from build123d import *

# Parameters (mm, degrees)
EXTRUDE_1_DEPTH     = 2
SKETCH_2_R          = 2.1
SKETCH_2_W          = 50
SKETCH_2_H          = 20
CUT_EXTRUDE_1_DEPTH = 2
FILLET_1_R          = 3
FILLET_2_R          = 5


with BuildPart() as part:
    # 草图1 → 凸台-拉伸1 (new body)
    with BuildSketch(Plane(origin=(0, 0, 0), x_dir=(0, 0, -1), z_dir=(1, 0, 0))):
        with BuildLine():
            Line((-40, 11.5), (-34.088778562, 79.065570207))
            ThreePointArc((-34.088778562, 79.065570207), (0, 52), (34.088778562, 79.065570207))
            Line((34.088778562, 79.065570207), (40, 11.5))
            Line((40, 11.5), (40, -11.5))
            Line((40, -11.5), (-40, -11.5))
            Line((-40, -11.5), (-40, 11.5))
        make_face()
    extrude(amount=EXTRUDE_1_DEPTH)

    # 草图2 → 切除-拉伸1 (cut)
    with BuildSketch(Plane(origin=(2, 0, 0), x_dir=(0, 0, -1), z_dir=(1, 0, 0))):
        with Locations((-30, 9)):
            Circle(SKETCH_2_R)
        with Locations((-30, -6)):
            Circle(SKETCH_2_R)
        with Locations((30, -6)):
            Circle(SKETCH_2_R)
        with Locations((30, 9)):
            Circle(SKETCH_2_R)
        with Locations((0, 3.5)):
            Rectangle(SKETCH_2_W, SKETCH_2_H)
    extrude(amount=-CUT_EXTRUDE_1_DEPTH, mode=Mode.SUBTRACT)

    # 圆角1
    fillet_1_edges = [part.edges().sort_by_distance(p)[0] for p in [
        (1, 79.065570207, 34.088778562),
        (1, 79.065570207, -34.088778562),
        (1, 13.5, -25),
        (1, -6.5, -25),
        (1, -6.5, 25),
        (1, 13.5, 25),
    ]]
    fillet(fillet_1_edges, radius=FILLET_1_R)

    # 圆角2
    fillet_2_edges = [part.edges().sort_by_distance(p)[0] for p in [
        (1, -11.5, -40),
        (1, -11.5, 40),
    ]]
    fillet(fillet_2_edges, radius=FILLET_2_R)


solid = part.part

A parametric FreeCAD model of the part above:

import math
import FreeCAD as App
import Part
import Sketcher
from FreeCAD import Vector
Q = App.Units.Quantity


def edges_at(feature, points):
    """Names of the edges that pass closest to the given points."""
    edges = feature.Shape.Edges
    near = lambda p: min(range(len(edges)), key=lambda i: edges[i].distToShape(Part.Vertex(*p))[0])
    return sorted({f"Edge{near(p) + 1}" for p in points})

doc = App.newDocument("Part")
body = doc.addObject("PartDesign::Body", "Body")

# Sketch on YZ plane
sketch1 = doc.addObject("Sketcher::SketchObject", "Sketch")
body.addObject(sketch1)
sketch1.AttachmentSupport = (doc.YZ_Plane, [""])
sketch1.MapMode = "FlatFace"
sketch1.addGeometry(Part.LineSegment(Vector(79, 34, 0), Vector(12, 40, 0)), False)
sketch1.addGeometry(Part.LineSegment(Vector(12, 40, 0), Vector(-12, 40, 0)), False)
sketch1.addGeometry(Part.LineSegment(Vector(-12, 40, 0), Vector(-12, -40, 0)), False)
sketch1.addGeometry(Part.LineSegment(Vector(-12, -40, 0), Vector(12, -40, 0)), False)
sketch1.addGeometry(Part.LineSegment(Vector(12, -40, 0), Vector(79, -34, 0)), False)
sketch1.addGeometry(Part.ArcOfCircle(Part.Circle(Vector(87, 0, 0), Vector(0, 0, 1), 35), math.radians(103), math.radians(257)), False)
sketch1.addConstraint(Sketcher.Constraint("Coincident", 0, 2, 1, 1))
sketch1.addConstraint(Sketcher.Constraint("Coincident", 1, 2, 2, 1))
sketch1.addConstraint(Sketcher.Constraint("Coincident", 2, 2, 3, 1))
sketch1.addConstraint(Sketcher.Constraint("Coincident", 3, 2, 4, 1))
sketch1.addConstraint(Sketcher.Constraint("Coincident", 4, 2, 5, 2))
sketch1.addConstraint(Sketcher.Constraint("Coincident", 5, 1, 0, 1))
sketch1.addConstraint(Sketcher.Constraint("Horizontal", 1))
sketch1.addConstraint(Sketcher.Constraint("Vertical", 2))
sketch1.addConstraint(Sketcher.Constraint("Horizontal", 3))
sketch1.addConstraint(Sketcher.Constraint("Symmetric", 0, 2, 2, 2, -1, 1))
sketch1.addConstraint(Sketcher.Constraint("Symmetric", 4, 2, 5, 1, -1))
sketch1.addConstraint(Sketcher.Constraint("Vertical", 0, 2, 3, 2))
sketch1.addConstraint(Sketcher.Constraint("Radius", 5, Q("35 mm")))
sketch1.addConstraint(Sketcher.Constraint("DistanceX", 1, 2, 1, 1, Q("23 mm")))
sketch1.addConstraint(Sketcher.Constraint("DistanceY", 2, 2, 2, 1, Q("80 mm")))
sketch1.addConstraint(Sketcher.Constraint("Angle", 0, Q("175 deg")))
sketch1.addConstraint(Sketcher.Constraint("DistanceX", -1, 1, 5, 3, Q("87 mm")))
pad1 = doc.addObject("PartDesign::Pad", "Pad")
body.addObject(pad1)
pad1.Profile = sketch1
pad1.Length = 2

# Sketch on YZ plane
sketch2 = doc.addObject("Sketcher::SketchObject", "Sketch001")
body.addObject(sketch2)
sketch2.AttachmentSupport = (doc.YZ_Plane, [""])
sketch2.MapMode = "FlatFace"
sketch2.AttachmentOffset = App.Placement(Vector(0, 0, 2), App.Rotation())
sketch2.addGeometry(Part.Circle(Vector(9, 30, 0), Vector(0, 0, 1), 2.1), False)
sketch2.addGeometry(Part.Circle(Vector(-6, 30, 0), Vector(0, 0, 1), 2.1), False)
sketch2.addGeometry(Part.Circle(Vector(-6, -30, 0), Vector(0, 0, 1), 2.1), False)
sketch2.addGeometry(Part.Circle(Vector(9, -30, 0), Vector(0, 0, 1), 2.1), False)
sketch2.addGeometry(Part.LineSegment(Vector(13.5, 25, 0), Vector(-6.5, 25, 0)), False)
sketch2.addGeometry(Part.LineSegment(Vector(-6.5, 25, 0), Vector(-6.5, -25, 0)), False)
sketch2.addGeometry(Part.LineSegment(Vector(-6.5, -25, 0), Vector(13.5, -25, 0)), False)
sketch2.addGeometry(Part.LineSegment(Vector(13.5, -25, 0), Vector(13.5, 25, 0)), False)
sketch2.addConstraint(Sketcher.Constraint("Coincident", 4, 2, 5, 1))
sketch2.addConstraint(Sketcher.Constraint("Coincident", 5, 2, 6, 1))
sketch2.addConstraint(Sketcher.Constraint("Coincident", 6, 2, 7, 1))
sketch2.addConstraint(Sketcher.Constraint("Coincident", 7, 2, 4, 1))
sketch2.addConstraint(Sketcher.Constraint("Horizontal", 4))
sketch2.addConstraint(Sketcher.Constraint("Vertical", 5))
sketch2.addConstraint(Sketcher.Constraint("Horizontal", 6))
sketch2.addConstraint(Sketcher.Constraint("Vertical", 7))
sketch2.addConstraint(Sketcher.Constraint("Equal", 0, 1))
sketch2.addConstraint(Sketcher.Constraint("Equal", 1, 2))
sketch2.addConstraint(Sketcher.Constraint("Equal", 2, 3))
sketch2.addConstraint(Sketcher.Constraint("Symmetric", 1, 3, 2, 3, -1))
sketch2.addConstraint(Sketcher.Constraint("Symmetric", 0, 3, 3, 3, -1))
sketch2.addConstraint(Sketcher.Constraint("Horizontal", 0, 3, 1, 3))
sketch2.addConstraint(Sketcher.Constraint("Diameter", 0, Q("4.2 mm")))
sketch2.addConstraint(Sketcher.Constraint("DistanceX", 4, 2, 4, 1, Q("20 mm")))
sketch2.addConstraint(Sketcher.Constraint("DistanceY", 5, 2, 5, 1, Q("50 mm")))
sketch2.addConstraint(Sketcher.Constraint("DistanceX", -1, 1, 0, 3, Q("9 mm")))
sketch2.addConstraint(Sketcher.Constraint("DistanceY", -1, 1, 0, 3, Q("30 mm")))
sketch2.addConstraint(Sketcher.Constraint("DistanceX", 1, 3, -1, 1, Q("6 mm")))
sketch2.addConstraint(Sketcher.Constraint("DistanceY", -1, 1, 4, 2, Q("25 mm")))
sketch2.addConstraint(Sketcher.Constraint("DistanceX", 4, 2, -1, 1, Q("6.5 mm")))
pocket1 = doc.addObject("PartDesign::Pocket", "Pocket")
body.addObject(pocket1)
pocket1.Profile = sketch2
pocket1.Length = 2
doc.recompute()

fillet = doc.addObject("PartDesign::Fillet", "Fillet")
body.addObject(fillet)
fillet.Base = (pocket1, edges_at(pocket1, [
    (1, 79.066, 34.089),
    (1, 79.066, -34.089),
    (1, 13.5, -25),
    (1, -6.5, -25),
    (1, -6.5, 25),
    (1, 13.5, 25),
]))
fillet.Radius = 3
doc.recompute()

fillet2 = doc.addObject("PartDesign::Fillet", "Fillet001")
body.addObject(fillet2)
fillet2.Base = (fillet, edges_at(fillet, [(1, -11.5, -40), (1, -11.5, 40)]))
fillet2.Radius = 5

doc.recompute()
